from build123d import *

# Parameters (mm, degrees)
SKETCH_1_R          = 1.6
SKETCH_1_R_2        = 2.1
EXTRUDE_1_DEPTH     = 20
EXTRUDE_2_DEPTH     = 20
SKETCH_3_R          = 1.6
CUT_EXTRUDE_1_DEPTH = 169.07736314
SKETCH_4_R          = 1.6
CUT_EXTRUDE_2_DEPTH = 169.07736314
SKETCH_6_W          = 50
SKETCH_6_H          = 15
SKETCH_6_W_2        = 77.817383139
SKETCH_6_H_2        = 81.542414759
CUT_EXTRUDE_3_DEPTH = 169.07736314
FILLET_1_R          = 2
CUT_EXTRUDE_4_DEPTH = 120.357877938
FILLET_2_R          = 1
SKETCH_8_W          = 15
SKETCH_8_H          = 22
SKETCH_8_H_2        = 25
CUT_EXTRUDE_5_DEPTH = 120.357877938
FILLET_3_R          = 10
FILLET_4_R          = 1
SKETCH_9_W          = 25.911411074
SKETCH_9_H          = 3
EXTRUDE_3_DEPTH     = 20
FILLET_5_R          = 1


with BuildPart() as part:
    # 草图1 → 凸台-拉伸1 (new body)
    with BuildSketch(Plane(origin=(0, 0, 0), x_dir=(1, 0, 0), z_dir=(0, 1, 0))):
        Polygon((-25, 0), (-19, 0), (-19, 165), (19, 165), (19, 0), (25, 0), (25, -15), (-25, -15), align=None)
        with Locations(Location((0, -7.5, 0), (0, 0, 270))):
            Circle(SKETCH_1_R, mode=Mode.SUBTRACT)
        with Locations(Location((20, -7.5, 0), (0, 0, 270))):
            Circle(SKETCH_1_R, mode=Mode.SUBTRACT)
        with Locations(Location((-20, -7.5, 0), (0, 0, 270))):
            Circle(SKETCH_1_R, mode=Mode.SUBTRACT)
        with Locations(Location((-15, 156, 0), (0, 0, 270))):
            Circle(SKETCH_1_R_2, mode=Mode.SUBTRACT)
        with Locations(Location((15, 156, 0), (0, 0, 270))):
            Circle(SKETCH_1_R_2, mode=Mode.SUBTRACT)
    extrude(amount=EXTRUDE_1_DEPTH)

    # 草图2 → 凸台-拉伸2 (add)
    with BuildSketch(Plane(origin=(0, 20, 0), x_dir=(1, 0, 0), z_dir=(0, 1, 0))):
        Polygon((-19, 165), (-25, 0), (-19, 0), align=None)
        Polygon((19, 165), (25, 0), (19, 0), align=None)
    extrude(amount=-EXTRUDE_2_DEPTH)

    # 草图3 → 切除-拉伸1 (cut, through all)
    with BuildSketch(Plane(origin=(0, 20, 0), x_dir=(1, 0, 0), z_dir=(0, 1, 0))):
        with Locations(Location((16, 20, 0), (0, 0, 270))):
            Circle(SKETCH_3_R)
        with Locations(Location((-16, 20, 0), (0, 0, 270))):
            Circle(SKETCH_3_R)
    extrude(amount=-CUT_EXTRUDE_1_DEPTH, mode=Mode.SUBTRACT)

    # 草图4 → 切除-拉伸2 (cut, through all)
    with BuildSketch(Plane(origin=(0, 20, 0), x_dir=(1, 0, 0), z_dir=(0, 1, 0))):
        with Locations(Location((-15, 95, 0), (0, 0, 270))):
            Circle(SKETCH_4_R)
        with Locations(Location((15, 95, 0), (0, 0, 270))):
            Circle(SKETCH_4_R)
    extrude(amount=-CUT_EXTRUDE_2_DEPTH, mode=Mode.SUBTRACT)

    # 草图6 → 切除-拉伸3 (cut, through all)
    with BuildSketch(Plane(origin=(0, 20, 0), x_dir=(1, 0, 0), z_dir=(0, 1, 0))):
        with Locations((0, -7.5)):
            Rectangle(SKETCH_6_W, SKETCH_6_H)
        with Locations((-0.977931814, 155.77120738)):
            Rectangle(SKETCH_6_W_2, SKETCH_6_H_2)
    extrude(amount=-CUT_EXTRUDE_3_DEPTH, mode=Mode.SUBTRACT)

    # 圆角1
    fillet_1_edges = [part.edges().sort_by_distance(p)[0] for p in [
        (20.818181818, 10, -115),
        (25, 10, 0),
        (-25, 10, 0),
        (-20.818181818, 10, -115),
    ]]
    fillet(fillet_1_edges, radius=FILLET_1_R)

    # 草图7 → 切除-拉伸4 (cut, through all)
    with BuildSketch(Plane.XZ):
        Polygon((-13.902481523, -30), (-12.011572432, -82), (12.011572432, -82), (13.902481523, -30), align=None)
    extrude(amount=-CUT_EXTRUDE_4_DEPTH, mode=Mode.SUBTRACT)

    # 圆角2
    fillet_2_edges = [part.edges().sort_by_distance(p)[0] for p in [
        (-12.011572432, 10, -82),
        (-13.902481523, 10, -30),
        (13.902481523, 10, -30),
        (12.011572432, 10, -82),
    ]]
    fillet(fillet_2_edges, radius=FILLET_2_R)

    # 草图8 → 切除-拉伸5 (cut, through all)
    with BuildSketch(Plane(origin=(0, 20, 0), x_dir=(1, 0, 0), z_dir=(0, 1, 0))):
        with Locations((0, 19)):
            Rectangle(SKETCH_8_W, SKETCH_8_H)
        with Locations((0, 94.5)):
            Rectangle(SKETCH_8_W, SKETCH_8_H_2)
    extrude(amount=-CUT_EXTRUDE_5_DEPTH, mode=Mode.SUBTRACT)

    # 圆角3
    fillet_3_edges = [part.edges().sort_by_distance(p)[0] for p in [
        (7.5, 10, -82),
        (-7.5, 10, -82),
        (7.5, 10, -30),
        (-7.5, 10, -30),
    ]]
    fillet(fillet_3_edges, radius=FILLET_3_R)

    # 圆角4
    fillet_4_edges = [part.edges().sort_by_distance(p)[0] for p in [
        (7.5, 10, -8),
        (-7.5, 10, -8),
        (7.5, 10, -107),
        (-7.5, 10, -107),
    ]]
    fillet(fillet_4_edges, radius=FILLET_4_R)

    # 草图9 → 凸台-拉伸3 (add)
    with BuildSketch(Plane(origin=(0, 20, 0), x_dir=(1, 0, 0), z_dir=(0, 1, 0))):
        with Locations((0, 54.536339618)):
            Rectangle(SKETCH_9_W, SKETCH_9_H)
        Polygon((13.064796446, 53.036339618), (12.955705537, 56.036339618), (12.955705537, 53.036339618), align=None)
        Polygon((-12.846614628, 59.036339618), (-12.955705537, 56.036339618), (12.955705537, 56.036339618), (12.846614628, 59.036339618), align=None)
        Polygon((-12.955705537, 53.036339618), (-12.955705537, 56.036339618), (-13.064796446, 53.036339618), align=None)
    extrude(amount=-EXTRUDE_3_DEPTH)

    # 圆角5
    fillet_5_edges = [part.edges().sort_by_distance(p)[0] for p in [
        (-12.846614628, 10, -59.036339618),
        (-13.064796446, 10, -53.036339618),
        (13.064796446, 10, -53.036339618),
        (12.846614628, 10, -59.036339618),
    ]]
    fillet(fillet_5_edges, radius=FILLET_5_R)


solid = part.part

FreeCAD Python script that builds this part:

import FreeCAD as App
import Part
import Sketcher
Q = App.Units.Quantity


def edges_at(feature, points):
    """Names of the edges that pass closest to the given points."""
    edges = feature.Shape.Edges
    near = lambda p: min(range(len(edges)), key=lambda i: edges[i].distToShape(Part.Vertex(*p))[0])
    return sorted({f"Edge{near(p) + 1}" for p in points})


def add_polygon(sketch, points):
    """Adds a closed chain of lines whose ends are joined by coincident constraints."""
    first, n = sketch.GeometryCount, len(points)
    for a, b in zip(points, points[1:] + points[:1]):
        sketch.addGeometry(Part.LineSegment(App.Vector(*a, 0), App.Vector(*b, 0)), False)
    for i in range(n):
        sketch.addConstraint(Sketcher.Constraint("Coincident", first + i, 2, first + (i + 1) % n, 1))

doc = App.newDocument("Part")
body = doc.addObject("PartDesign::Body", "Body")

sketch1 = body.newObject("Sketcher::SketchObject", "Sketch")
sketch1.AttachmentSupport = (doc.getObject("XZ_Plane"), [""])
sketch1.MapMode = "FlatFace"
add_polygon(sketch1, [(-19, 0), (-25, 0), (-25, 15), (25, 15), (25, 0), (19, 0), (19, -165), (-19, -165)])
sketch1.addGeometry(Part.Circle(App.Vector(20, 7.5, 0), App.Vector(0, 0, 1), 1.6), False)
sketch1.addGeometry(Part.Circle(App.Vector(0, 7.5, 0), App.Vector(0, 0, 1), 1.6), False)
sketch1.addGeometry(Part.Circle(App.Vector(-20, 7.5, 0), App.Vector(0, 0, 1), 1.6), False)
sketch1.addGeometry(Part.Circle(App.Vector(15, -156, 0), App.Vector(0, 0, 1), 2.1), False)
sketch1.addGeometry(Part.Circle(App.Vector(-15, -156, 0), App.Vector(0, 0, 1), 2.1), False)
sketch1.addConstraint(Sketcher.Constraint("Horizontal", 0))
sketch1.addConstraint(Sketcher.Constraint("Vertical", 1))
sketch1.addConstraint(Sketcher.Constraint("Horizontal", 2))
sketch1.addConstraint(Sketcher.Constraint("Vertical", 3))
sketch1.addConstraint(Sketcher.Constraint("Horizontal", 4))
sketch1.addConstraint(Sketcher.Constraint("Vertical", 5))
sketch1.addConstraint(Sketcher.Constraint("Horizontal", 6))
sketch1.addConstraint(Sketcher.Constraint("Vertical", 7))
sketch1.addConstraint(Sketcher.Constraint("Equal", 8, 9))
sketch1.addConstraint(Sketcher.Constraint("Equal", 9, 10))
sketch1.addConstraint(Sketcher.Constraint("Equal", 11, 12))
sketch1.addConstraint(Sketcher.Constraint("Symmetric", 0, 2, 3, 2, -1, 1))
sketch1.addConstraint(Sketcher.Constraint("Symmetric", 8, 3, 10, 3, -2))
sketch1.addConstraint(Sketcher.Constraint("Symmetric", 11, 3, 12, 3, -2))
sketch1.addConstraint(Sketcher.Constraint("Symmetric", 4, 2, 7, 2, -2))
sketch1.addConstraint(Sketcher.Constraint("PointOnObject", 9, 3, -2))
sketch1.addConstraint(Sketcher.Constraint("Horizontal", 8, 3, 9, 3))
sketch1.addConstraint(Sketcher.Constraint("Diameter", 8, Q("3.2 mm")))
sketch1.addConstraint(Sketcher.Constraint("Diameter", 11, Q("4.2 mm")))
sketch1.addConstraint(Sketcher.Constraint("DistanceX", 0, 2, 0, 1, Q("6 mm")))
sketch1.addConstraint(Sketcher.Constraint("DistanceX", 2, 1, 2, 2, Q("50 mm")))
sketch1.addConstraint(Sketcher.Constraint("DistanceY", 1, 1, 1, 2, Q("15 mm")))
sketch1.addConstraint(Sketcher.Constraint("DistanceY", 5, 2, 5, 1, Q("165 mm")))
sketch1.addConstraint(Sketcher.Constraint("DistanceX", -1, 1, 8, 3, Q("20 mm")))
sketch1.addConstraint(Sketcher.Constraint("DistanceX", -1, 1, 11, 3, Q("15 mm")))
sketch1.addConstraint(Sketcher.Constraint("DistanceY", 11, 3, -1, 1, Q("156 mm")))
sketch1.addConstraint(Sketcher.Constraint("DistanceY", -1, 1, 8, 3, Q("7.5 mm")))
pad1 = body.newObject("PartDesign::Pad", "Pad")
pad1.Profile = sketch1
pad1.Length = 20
pad1.Reversed = True

sketch2 = body.newObject("Sketcher::SketchObject", "Sketch001")
sketch2.AttachmentSupport = (doc.getObject("XZ_Plane"), [""])
sketch2.MapMode = "FlatFace"
sketch2.AttachmentOffset = App.Placement(App.Vector(0, 0, -20), App.Rotation())
add_polygon(sketch2, [(-19, -165), (-25, 0), (-19, 0)])
add_polygon(sketch2, [(25, 0), (19, -165), (19, 0)])
sketch2.addConstraint(Sketcher.Constraint("Horizontal", 1))
sketch2.addConstraint(Sketcher.Constraint("Vertical", 2))
sketch2.addConstraint(Sketcher.Constraint("Vertical", 4))
sketch2.addConstraint(Sketcher.Constraint("Horizontal", 5))
sketch2.addConstraint(Sketcher.Constraint("Symmetric", 1, 2, 4, 2, -1, 1))
sketch2.addConstraint(Sketcher.Constraint("Symmetric", 0, 2, 5, 2, -2))
sketch2.addConstraint(Sketcher.Constraint("Horizontal", 2, 2, 3, 2))
sketch2.addConstraint(Sketcher.Constraint("DistanceX", 1, 1, 1, 2, Q("6 mm")))
sketch2.addConstraint(Sketcher.Constraint("DistanceY", 2, 2, 2, 1, Q("165 mm")))
sketch2.addConstraint(Sketcher.Constraint("DistanceX", 0, 2, -1, 1, Q("25 mm")))
pad2 = body.newObject("PartDesign::Pad", "Pad001")
pad2.Profile = sketch2
pad2.Length = 20

sketch3 = body.newObject("Sketcher::SketchObject", "Sketch002")
sketch3.AttachmentSupport = (doc.getObject("XZ_Plane"), [""])
sketch3.MapMode = "FlatFace"
sketch3.AttachmentOffset = App.Placement(App.Vector(0, 0, -20), App.Rotation())
sketch3.addGeometry(Part.Circle(App.Vector(16, -20, 0), App.Vector(0, 0, 1), 1.6), False)
sketch3.addGeometry(Part.Circle(App.Vector(-16, -20, 0), App.Vector(0, 0, 1), 1.6), False)
sketch3.addConstraint(Sketcher.Constraint("Equal", 0, 1))
sketch3.addConstraint(Sketcher.Constraint("Symmetric", 0, 3, 1, 3, -2))
sketch3.addConstraint(Sketcher.Constraint("Diameter", 0, Q("3.2 mm")))
sketch3.addConstraint(Sketcher.Constraint("DistanceX", -1, 1, 0, 3, Q("16 mm")))
sketch3.addConstraint(Sketcher.Constraint("DistanceY", 0, 3, -1, 1, Q("20 mm")))
pocket1 = body.newObject("PartDesign::Pocket", "Pocket")
pocket1.Profile = sketch3
pocket1.Type = "ThroughAll"
pocket1.Reversed = True

sketch4 = body.newObject("Sketcher::SketchObject", "Sketch003")
sketch4.AttachmentSupport = (doc.getObject("XZ_Plane"), [""])
sketch4.MapMode = "FlatFace"
sketch4.AttachmentOffset = App.Placement(App.Vector(0, 0, -20), App.Rotation())
sketch4.addGeometry(Part.Circle(App.Vector(-15, -95, 0), App.Vector(0, 0, 1), 1.6), False)
sketch4.addGeometry(Part.Circle(App.Vector(15, -95, 0), App.Vector(0, 0, 1), 1.6), False)
sketch4.addConstraint(Sketcher.Constraint("Equal", 0, 1))
sketch4.addConstraint(Sketcher.Constraint("Symmetric", 0, 3, 1, 3, -2))
sketch4.addConstraint(Sketcher.Constraint("Diameter", 0, Q("3.2 mm")))
sketch4.addConstraint(Sketcher.Constraint("DistanceX", 0, 3, -1, 1, Q("15 mm")))
sketch4.addConstraint(Sketcher.Constraint("DistanceY", 0, 3, -1, 1, Q("95 mm")))
pocket2 = body.newObject("PartDesign::Pocket", "Pocket001")
pocket2.Profile = sketch4
pocket2.Type = "ThroughAll"
pocket2.Reversed = True

sketch5 = body.newObject("Sketcher::SketchObject", "Sketch004")
sketch5.AttachmentSupport = (doc.getObject("XZ_Plane"), [""])
sketch5.MapMode = "FlatFace"
sketch5.AttachmentOffset = App.Placement(App.Vector(0, 0, -20), App.Rotation())
add_polygon(sketch5, [(-25, 0), (-25, 15), (25, 15), (25, 0)])
add_polygon(sketch5, [(-40, -197), (-40, -115), (38, -115), (38, -197)])
sketch5.addConstraint(Sketcher.Constraint("Vertical", 0))
sketch5.addConstraint(Sketcher.Constraint("Horizontal", 1))
sketch5.addConstraint(Sketcher.Constraint("Vertical", 2))
sketch5.addConstraint(Sketcher.Constraint("Horizontal", 3))
sketch5.addConstraint(Sketcher.Constraint("Vertical", 4))
sketch5.addConstraint(Sketcher.Constraint("Horizontal", 5))
sketch5.addConstraint(Sketcher.Constraint("Vertical", 6))
sketch5.addConstraint(Sketcher.Constraint("Horizontal", 7))
sketch5.addConstraint(Sketcher.Constraint("Symmetric", 2, 2, 3, 2, -1, 1))
sketch5.addConstraint(Sketcher.Constraint("DistanceX", 1, 1, 1, 2, Q("50 mm")))
sketch5.addConstraint(Sketcher.Constraint("DistanceY", 0, 1, 0, 2, Q("15 mm")))
sketch5.addConstraint(Sketcher.Constraint("DistanceY", 4, 2, -1, 1, Q("115 mm")))
sketch5.addConstraint(Sketcher.Constraint("DistanceX", 5, 1, 5, 2, Q("77.817383 mm")))
sketch5.addConstraint(Sketcher.Constraint("DistanceY", 4, 1, 4, 2, Q("81.542415 mm")))
sketch5.addConstraint(Sketcher.Constraint("DistanceX", -1, 1, 5, 2, Q("37.93076 mm")))
pocket3 = body.newObject("PartDesign::Pocket", "Pocket002")
pocket3.Profile = sketch5
pocket3.Type = "ThroughAll"
pocket3.Reversed = True
doc.recompute()

fillet = body.newObject("PartDesign::Fillet", "Fillet")
fillet.Base = (pocket3, edges_at(pocket3, [
    (20.818, 10, -115),
    (25, 10, 0),
    (-25, 10, 0),
    (-20.818, 10, -115),
]))
fillet.Radius = 2

sketch6 = body.newObject("Sketcher::SketchObject", "Sketch005")
sketch6.AttachmentSupport = (doc.getObject("XZ_Plane"), [""])
sketch6.MapMode = "FlatFace"
add_polygon(sketch6, [(-14, -30), (-12, -82), (12, -82), (14, -30)])
sketch6.addConstraint(Sketcher.Constraint("Horizontal", 1))
sketch6.addConstraint(Sketcher.Constraint("Horizontal", 3))
sketch6.addConstraint(Sketcher.Constraint("Equal", 0, 2))
sketch6.addConstraint(Sketcher.Constraint("DistanceY", 0, 2, -1, 1, Q("82 mm")))
sketch6.addConstraint(Sketcher.Constraint("DistanceY", 2, 2, -1, 1, Q("30 mm")))
sketch6.addConstraint(Sketcher.Constraint("Distance", 0, Q("52.034369 mm")))
sketch6.addConstraint(Sketcher.Constraint("DistanceX", 1, 1, 1, 2, Q("24.023145 mm")))
sketch6.addConstraint(Sketcher.Constraint("DistanceX", -1, 1, 2, 2, Q("13.902482 mm")))
pocket4 = body.newObject("PartDesign::Pocket", "Pocket003")
pocket4.Profile = sketch6
pocket4.Type = "ThroughAll"
doc.recompute()

fillet2 = body.newObject("PartDesign::Fillet", "Fillet001")
fillet2.Base = (pocket4, edges_at(pocket4, [
    (-12.012, 10, -82),
    (-13.902, 10, -30),
    (13.902, 10, -30),
    (12.012, 10, -82),
]))
fillet2.Radius = 1

sketch7 = body.newObject("Sketcher::SketchObject", "Sketch006")
sketch7.AttachmentSupport = (doc.getObject("XZ_Plane"), [""])
sketch7.MapMode = "FlatFace"
sketch7.AttachmentOffset = App.Placement(App.Vector(0, 0, -20), App.Rotation())
add_polygon(sketch7, [(-8, -30), (-8, -8), (8, -8), (8, -30)])
add_polygon(sketch7, [(-8, -107), (-8, -82), (8, -82), (8, -107)])
sketch7.addConstraint(Sketcher.Constraint("Vertical", 0))
sketch7.addConstraint(Sketcher.Constraint("Horizontal", 1))
sketch7.addConstraint(Sketcher.Constraint("Vertical", 2))
sketch7.addConstraint(Sketcher.Constraint("Horizontal", 3))
sketch7.addConstraint(Sketcher.Constraint("Vertical", 4))
sketch7.addConstraint(Sketcher.Constraint("Horizontal", 5))
sketch7.addConstraint(Sketcher.Constraint("Vertical", 6))
sketch7.addConstraint(Sketcher.Constraint("Horizontal", 7))
sketch7.addConstraint(Sketcher.Constraint("Vertical", 3, 2, 4, 2))
sketch7.addConstraint(Sketcher.Constraint("Vertical", 2, 2, 5, 2))
sketch7.addConstraint(Sketcher.Constraint("DistanceX", 1, 1, 1, 2, Q("15 mm")))
sketch7.addConstraint(Sketcher.Constraint("DistanceY", 0, 1, 0, 2, Q("22 mm")))
sketch7.addConstraint(Sketcher.Constraint("DistanceY", 4, 1, 4, 2, Q("25 mm")))
sketch7.addConstraint(Sketcher.Constraint("DistanceY", 0, 2, -1, 1, Q("8 mm")))
sketch7.addConstraint(Sketcher.Constraint("DistanceY", 4, 2, -1, 1, Q("82 mm")))
sketch7.addConstraint(Sketcher.Constraint("DistanceX", 0, 2, -1, 1, Q("7.5 mm")))
pocket5 = body.newObject("PartDesign::Pocket", "Pocket004")
pocket5.Profile = sketch7
pocket5.Type = "ThroughAll"
pocket5.Reversed = True
doc.recompute()

fillet3 = body.newObject("PartDesign::Fillet", "Fillet002")
fillet3.Base = (pocket5, edges_at(pocket5, [
    (7.5, 10, -82),
    (-7.5, 10, -82),
    (7.5, 10, -30),
    (-7.5, 10, -30),
]))
fillet3.Radius = 10
doc.recompute()

fillet4 = body.newObject("PartDesign::Fillet", "Fillet003")
fillet4.Base = (fillet3, edges_at(fillet3, [
    (7.5, 10, -8),
    (-7.5, 10, -8),
    (7.5, 10, -107),
    (-7.5, 10, -107),
]))
fillet4.Radius = 1

sketch8 = body.newObject("Sketcher::SketchObject", "Sketch007")
sketch8.AttachmentSupport = (doc.getObject("XZ_Plane"), [""])
sketch8.MapMode = "FlatFace"
sketch8.AttachmentOffset = App.Placement(App.Vector(0, 0, -20), App.Rotation())
add_polygon(sketch8, [(13, -53), (13, -59), (-13, -59), (-13, -53)])
sketch8.addConstraint(Sketcher.Constraint("Horizontal", 1))
sketch8.addConstraint(Sketcher.Constraint("Horizontal", 3))
sketch8.addConstraint(Sketcher.Constraint("Equal", 0, 2))
sketch8.addConstraint(Sketcher.Constraint("DistanceY", 1, 2, 2, 2, Q("6 mm")))
sketch8.addConstraint(Sketcher.Constraint("DistanceX", 1, 2, 1, 1, Q("25.693229 mm")))
sketch8.addConstraint(Sketcher.Constraint("DistanceX", 3, 1, 3, 2, Q("26.129593 mm")))
sketch8.addConstraint(Sketcher.Constraint("DistanceY", 0, 2, -1, 1, Q("59.03634 mm")))
sketch8.addConstraint(Sketcher.Constraint("DistanceX", -1, 1, 0, 2, Q("12.846615 mm")))
pad3 = body.newObject("PartDesign::Pad", "Pad002")
pad3.Profile = sketch8
pad3.Length = 20
doc.recompute()

fillet5 = body.newObject("PartDesign::Fillet", "Fillet004")
fillet5.Base = (pad3, edges_at(pad3, [
    (-12.847, 10, -59.036),
    (-13.065, 10, -53.036),
    (13.065, 10, -53.036),
    (12.847, 10, -59.036),
]))
fillet5.Radius = 1

doc.recompute()
